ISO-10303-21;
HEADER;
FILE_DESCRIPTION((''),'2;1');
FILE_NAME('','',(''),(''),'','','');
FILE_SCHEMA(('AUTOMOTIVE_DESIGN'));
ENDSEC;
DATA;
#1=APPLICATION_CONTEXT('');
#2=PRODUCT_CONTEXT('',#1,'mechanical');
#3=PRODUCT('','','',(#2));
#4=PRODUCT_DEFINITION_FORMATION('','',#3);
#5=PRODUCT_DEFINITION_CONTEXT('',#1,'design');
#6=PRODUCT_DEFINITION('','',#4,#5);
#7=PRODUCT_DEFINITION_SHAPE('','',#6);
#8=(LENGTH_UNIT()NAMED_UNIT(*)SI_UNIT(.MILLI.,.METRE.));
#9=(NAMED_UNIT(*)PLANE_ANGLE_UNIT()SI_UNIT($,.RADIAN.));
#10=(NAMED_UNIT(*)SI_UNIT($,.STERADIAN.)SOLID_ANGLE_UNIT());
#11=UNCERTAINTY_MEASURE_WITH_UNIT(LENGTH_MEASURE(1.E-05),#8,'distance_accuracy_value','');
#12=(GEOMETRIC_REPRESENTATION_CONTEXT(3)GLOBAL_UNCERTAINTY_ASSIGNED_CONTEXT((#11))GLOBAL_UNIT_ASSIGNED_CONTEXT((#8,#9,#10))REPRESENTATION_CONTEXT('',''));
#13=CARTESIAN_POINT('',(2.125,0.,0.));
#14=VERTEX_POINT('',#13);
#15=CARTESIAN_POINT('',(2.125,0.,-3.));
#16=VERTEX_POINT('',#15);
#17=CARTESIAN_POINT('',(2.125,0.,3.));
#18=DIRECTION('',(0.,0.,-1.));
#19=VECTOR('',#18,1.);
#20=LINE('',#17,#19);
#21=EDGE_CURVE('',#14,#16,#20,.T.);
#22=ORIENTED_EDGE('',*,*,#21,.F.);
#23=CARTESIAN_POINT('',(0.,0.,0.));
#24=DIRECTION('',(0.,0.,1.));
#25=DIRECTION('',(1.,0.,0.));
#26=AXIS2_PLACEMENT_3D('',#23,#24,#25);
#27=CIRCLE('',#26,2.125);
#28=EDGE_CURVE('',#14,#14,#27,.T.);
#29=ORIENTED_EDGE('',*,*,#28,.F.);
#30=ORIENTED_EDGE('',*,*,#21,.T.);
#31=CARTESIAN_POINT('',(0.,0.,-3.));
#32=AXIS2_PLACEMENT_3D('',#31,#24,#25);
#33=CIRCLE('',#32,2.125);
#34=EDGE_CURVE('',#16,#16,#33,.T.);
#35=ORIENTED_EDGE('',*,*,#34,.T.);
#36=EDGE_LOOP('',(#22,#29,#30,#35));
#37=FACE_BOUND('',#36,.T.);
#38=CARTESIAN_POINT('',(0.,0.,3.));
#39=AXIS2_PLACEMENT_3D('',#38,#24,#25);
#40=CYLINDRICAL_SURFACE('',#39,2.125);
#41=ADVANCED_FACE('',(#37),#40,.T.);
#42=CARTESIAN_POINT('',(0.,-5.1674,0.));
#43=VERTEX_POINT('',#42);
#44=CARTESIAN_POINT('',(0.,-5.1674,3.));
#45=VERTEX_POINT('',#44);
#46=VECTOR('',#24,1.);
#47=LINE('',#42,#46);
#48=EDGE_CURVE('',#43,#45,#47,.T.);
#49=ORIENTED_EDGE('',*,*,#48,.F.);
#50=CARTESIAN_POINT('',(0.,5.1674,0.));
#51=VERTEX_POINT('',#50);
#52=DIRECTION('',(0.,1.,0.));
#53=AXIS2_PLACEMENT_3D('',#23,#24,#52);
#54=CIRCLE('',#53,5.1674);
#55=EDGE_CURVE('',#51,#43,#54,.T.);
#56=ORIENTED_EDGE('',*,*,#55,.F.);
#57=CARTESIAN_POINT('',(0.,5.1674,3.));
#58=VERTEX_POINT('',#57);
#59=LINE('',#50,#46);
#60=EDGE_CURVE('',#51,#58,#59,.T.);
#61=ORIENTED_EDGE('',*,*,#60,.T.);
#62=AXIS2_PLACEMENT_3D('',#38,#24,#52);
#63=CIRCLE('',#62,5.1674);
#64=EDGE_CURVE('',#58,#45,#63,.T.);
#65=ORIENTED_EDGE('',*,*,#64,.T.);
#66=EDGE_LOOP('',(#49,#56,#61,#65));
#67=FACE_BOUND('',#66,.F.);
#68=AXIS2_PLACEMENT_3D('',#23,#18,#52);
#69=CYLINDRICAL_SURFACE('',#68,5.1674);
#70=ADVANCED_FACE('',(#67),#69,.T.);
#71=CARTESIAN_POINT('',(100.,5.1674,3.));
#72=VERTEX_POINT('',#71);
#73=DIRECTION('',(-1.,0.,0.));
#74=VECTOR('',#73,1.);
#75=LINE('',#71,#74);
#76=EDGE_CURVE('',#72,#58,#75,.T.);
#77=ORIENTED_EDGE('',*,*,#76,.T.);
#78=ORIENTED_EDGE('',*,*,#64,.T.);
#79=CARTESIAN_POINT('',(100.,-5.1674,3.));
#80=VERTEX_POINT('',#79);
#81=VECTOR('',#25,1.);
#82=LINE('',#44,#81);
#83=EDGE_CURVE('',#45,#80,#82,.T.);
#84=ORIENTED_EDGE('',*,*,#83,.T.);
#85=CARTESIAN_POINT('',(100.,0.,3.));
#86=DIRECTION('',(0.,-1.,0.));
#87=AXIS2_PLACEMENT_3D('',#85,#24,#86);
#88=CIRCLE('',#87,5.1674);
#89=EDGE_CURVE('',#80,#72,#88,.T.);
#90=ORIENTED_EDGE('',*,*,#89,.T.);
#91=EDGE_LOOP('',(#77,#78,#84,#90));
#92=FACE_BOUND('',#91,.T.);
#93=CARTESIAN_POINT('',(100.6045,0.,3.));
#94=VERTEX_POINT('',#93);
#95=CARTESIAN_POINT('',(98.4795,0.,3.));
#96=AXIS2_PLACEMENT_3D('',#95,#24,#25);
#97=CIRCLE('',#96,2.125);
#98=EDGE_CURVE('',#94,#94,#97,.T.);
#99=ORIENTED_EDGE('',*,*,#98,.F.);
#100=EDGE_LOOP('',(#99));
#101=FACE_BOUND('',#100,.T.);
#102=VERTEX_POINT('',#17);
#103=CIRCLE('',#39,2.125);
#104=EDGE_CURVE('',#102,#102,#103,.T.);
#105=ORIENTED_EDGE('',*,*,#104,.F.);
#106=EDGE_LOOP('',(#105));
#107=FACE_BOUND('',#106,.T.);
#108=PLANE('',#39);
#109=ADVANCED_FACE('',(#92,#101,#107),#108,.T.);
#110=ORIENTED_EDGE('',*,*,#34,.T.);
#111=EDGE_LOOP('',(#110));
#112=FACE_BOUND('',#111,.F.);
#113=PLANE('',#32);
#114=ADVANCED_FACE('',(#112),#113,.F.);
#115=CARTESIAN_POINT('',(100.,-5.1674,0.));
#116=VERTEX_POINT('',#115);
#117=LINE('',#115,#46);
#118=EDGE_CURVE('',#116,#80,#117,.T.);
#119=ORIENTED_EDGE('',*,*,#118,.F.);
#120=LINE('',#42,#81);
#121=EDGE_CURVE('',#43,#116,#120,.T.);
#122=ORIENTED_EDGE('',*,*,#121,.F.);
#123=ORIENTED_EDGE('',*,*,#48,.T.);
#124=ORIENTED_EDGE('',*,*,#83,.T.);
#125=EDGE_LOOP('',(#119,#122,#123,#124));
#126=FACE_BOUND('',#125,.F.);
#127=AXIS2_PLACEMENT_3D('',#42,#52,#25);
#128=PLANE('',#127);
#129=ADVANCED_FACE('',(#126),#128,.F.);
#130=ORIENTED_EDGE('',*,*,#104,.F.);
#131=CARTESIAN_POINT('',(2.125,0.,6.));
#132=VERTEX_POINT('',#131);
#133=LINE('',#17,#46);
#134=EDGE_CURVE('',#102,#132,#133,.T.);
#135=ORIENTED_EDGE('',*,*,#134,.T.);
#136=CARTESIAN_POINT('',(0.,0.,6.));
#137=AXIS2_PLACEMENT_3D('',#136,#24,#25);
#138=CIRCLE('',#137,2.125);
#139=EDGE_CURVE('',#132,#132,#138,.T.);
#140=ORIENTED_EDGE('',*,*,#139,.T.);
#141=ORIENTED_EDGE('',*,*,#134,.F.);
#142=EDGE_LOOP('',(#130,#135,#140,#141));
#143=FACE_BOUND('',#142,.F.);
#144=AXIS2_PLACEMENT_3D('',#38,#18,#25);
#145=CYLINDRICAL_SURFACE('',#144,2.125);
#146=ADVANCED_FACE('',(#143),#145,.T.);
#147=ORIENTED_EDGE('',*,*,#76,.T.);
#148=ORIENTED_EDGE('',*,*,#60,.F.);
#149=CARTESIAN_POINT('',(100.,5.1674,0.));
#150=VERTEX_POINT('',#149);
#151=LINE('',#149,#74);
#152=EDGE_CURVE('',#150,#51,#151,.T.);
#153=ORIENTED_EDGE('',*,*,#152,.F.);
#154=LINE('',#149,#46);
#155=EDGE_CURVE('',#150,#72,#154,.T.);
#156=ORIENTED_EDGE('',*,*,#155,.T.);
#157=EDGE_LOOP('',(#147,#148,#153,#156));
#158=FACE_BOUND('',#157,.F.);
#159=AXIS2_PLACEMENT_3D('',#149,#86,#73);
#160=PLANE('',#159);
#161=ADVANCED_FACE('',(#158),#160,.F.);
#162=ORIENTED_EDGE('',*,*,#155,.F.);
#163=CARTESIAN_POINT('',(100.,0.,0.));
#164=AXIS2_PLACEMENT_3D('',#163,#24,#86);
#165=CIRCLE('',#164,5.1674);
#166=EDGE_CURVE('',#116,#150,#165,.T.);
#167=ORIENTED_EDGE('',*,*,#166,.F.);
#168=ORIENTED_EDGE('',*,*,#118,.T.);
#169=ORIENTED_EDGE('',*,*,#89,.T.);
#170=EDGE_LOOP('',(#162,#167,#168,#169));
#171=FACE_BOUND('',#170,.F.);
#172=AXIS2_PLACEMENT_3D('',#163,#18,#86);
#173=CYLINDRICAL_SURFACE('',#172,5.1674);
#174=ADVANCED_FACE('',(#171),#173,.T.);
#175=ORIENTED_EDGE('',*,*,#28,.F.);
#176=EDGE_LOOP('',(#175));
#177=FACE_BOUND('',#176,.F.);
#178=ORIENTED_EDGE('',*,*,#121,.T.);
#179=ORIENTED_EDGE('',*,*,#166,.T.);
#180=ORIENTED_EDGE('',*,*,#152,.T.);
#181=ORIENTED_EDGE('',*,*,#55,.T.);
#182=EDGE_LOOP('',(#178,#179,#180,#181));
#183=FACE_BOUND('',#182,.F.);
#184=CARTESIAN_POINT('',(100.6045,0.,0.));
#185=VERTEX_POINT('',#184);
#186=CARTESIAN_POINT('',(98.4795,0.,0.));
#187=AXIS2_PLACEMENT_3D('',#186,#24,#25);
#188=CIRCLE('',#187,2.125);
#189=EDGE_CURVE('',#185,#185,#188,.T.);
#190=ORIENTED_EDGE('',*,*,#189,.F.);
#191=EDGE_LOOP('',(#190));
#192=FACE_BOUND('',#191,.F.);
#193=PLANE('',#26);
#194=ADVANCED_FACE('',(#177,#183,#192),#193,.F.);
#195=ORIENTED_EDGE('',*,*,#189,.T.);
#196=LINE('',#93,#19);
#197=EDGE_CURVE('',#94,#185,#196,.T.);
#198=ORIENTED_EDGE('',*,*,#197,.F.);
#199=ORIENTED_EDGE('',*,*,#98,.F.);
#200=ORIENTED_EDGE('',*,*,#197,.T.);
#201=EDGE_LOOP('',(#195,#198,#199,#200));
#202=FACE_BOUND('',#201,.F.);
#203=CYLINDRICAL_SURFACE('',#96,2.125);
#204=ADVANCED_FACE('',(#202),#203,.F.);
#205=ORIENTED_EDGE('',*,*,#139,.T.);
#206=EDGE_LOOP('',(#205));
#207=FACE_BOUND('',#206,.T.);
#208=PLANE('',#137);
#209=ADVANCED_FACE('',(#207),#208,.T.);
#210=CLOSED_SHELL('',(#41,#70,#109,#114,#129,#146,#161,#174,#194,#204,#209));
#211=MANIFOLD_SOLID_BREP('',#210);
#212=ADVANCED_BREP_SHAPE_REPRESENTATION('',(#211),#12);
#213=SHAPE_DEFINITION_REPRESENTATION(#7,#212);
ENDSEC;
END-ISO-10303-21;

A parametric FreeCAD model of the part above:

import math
import FreeCAD as App
import Part
import Sketcher
Q = App.Units.Quantity

doc = App.newDocument("Part")
body = doc.addObject("PartDesign::Body", "Body")

# Sketch on XY plane
sketch1 = body.newObject("Sketcher::SketchObject", "Sketch")
sketch1.AttachmentSupport = (doc.getObject("XY_Plane"), [""])
sketch1.MapMode = "FlatFace"
sketch1.addGeometry([
    Part.ArcOfCircle(Part.Circle(App.Vector(0, 0, 0), App.Vector(0, 0, 1), 5), math.radians(90), math.radians(270)),
    Part.LineSegment(App.Vector(0, -5, 0), App.Vector(100, -5, 0)),
    Part.ArcOfCircle(Part.Circle(App.Vector(100, 0, 0), App.Vector(0, 0, 1), 5), math.radians(-90), math.radians(90)),
    Part.LineSegment(App.Vector(100, 5, 0), App.Vector(0, 5, 0)),
], False)
sketch1.addConstraint([
    Sketcher.Constraint("Tangent", 0, 2, 1, 1),
    Sketcher.Constraint("Tangent", 1, 2, 2, 1),
    Sketcher.Constraint("Tangent", 2, 2, 3, 1),
    Sketcher.Constraint("Tangent", 3, 2, 0, 1),
    Sketcher.Constraint("Horizontal", 1),
    Sketcher.Constraint("Horizontal", 3),
    Sketcher.Constraint("Coincident", 0, 3, -1, 1),
    Sketcher.Constraint("DistanceX", 1, 1, 1, 2, Q("3.937 in")),
    Sketcher.Constraint("Radius", 0, 5.1674),
])
pad1 = body.newObject("PartDesign::Pad", "Pad")
pad1.Profile = sketch1
pad1.Length = Q("0.1181102 in")

# Sketch on XY plane
sketch2 = body.newObject("Sketcher::SketchObject", "Sketch001")
sketch2.AttachmentSupport = (doc.getObject("XY_Plane"), [""])
sketch2.MapMode = "FlatFace"
sketch2.AttachmentOffset = App.Placement(App.Vector(0, 0, 0.1181102 * 25.4), App.Rotation())
sketch2.addGeometry(Part.Circle(App.Vector(0, 0, 0), App.Vector(0, 0, 1), 2.1), False)
sketch2.addConstraint([
    Sketcher.Constraint("Coincident", 0, 3, -1, 1),
    Sketcher.Constraint("Diameter", 0, 4.25),
])
pad2 = body.newObject("PartDesign::Pad", "Pad001")
pad2.Profile = sketch2
pad2.Type = "TwoLengths"
pad2.Length = Q("0.1181102 in")
pad2.Length2 = 6

# Sketch on XY plane
sketch3 = body.newObject("Sketcher::SketchObject", "Sketch002")
sketch3.AttachmentSupport = (doc.getObject("XY_Plane"), [""])
sketch3.MapMode = "FlatFace"
sketch3.AttachmentOffset = App.Placement(App.Vector(0, 0, 0.1181102 * 25.4), App.Rotation())
sketch3.addGeometry(Part.Circle(App.Vector(140.4, 0, 0), App.Vector(0, 0, 1), 2.1), False)
sketch3.addConstraint([
    Sketcher.Constraint("PointOnObject", 0, 3, -1),
    Sketcher.Constraint("Diameter", 0, 4.25),
    Sketcher.Constraint("DistanceX", -1, 1, 0, 3, 140.404),
])
pocket1 = body.newObject("PartDesign::Pocket", "Pocket")
pocket1.Profile = sketch3
pocket1.Length = Q("0.1181102 in")

# Sketch on XY plane
sketch4 = body.newObject("Sketcher::SketchObject", "Sketch003")
sketch4.AttachmentSupport = (doc.getObject("XY_Plane"), [""])
sketch4.MapMode = "FlatFace"
sketch4.AttachmentOffset = App.Placement(App.Vector(0, 0, 0.1181102 * 25.4), App.Rotation())
sketch4.addGeometry(Part.Circle(App.Vector(120.5, 0, 0), App.Vector(0, 0, 1), 2.1), False)
sketch4.addConstraint([
    Sketcher.Constraint("PointOnObject", 0, 3, -1),
    Sketcher.Constraint("Diameter", 0, 4.25),
    Sketcher.Constraint("DistanceX", -1, 1, 0, 3, 120.473),
])
pocket2 = body.newObject("PartDesign::Pocket", "Pocket001")
pocket2.Profile = sketch4
pocket2.Length = Q("0.3937008 in")

# Sketch on XY plane
sketch5 = body.newObject("Sketcher::SketchObject", "Sketch004")
sketch5.AttachmentSupport = (doc.getObject("XY_Plane"), [""])
sketch5.MapMode = "FlatFace"
sketch5.AttachmentOffset = App.Placement(App.Vector(0, 0, 0.1181102 * 25.4), App.Rotation())
sketch5.addGeometry(Part.Circle(App.Vector(98.5, 0, 0), App.Vector(0, 0, 1), 2.1), False)
sketch5.addConstraint([
    Sketcher.Constraint("PointOnObject", 0, 3, -1),
    Sketcher.Constraint("Diameter", 0, 4.25),
    Sketcher.Constraint("DistanceX", -1, 1, 0, 3, 98.4795),
])
pocket3 = body.newObject("PartDesign::Pocket", "Pocket002")
pocket3.Profile = sketch5
pocket3.Length = Q("0.3937008 in")

doc.recompute()
